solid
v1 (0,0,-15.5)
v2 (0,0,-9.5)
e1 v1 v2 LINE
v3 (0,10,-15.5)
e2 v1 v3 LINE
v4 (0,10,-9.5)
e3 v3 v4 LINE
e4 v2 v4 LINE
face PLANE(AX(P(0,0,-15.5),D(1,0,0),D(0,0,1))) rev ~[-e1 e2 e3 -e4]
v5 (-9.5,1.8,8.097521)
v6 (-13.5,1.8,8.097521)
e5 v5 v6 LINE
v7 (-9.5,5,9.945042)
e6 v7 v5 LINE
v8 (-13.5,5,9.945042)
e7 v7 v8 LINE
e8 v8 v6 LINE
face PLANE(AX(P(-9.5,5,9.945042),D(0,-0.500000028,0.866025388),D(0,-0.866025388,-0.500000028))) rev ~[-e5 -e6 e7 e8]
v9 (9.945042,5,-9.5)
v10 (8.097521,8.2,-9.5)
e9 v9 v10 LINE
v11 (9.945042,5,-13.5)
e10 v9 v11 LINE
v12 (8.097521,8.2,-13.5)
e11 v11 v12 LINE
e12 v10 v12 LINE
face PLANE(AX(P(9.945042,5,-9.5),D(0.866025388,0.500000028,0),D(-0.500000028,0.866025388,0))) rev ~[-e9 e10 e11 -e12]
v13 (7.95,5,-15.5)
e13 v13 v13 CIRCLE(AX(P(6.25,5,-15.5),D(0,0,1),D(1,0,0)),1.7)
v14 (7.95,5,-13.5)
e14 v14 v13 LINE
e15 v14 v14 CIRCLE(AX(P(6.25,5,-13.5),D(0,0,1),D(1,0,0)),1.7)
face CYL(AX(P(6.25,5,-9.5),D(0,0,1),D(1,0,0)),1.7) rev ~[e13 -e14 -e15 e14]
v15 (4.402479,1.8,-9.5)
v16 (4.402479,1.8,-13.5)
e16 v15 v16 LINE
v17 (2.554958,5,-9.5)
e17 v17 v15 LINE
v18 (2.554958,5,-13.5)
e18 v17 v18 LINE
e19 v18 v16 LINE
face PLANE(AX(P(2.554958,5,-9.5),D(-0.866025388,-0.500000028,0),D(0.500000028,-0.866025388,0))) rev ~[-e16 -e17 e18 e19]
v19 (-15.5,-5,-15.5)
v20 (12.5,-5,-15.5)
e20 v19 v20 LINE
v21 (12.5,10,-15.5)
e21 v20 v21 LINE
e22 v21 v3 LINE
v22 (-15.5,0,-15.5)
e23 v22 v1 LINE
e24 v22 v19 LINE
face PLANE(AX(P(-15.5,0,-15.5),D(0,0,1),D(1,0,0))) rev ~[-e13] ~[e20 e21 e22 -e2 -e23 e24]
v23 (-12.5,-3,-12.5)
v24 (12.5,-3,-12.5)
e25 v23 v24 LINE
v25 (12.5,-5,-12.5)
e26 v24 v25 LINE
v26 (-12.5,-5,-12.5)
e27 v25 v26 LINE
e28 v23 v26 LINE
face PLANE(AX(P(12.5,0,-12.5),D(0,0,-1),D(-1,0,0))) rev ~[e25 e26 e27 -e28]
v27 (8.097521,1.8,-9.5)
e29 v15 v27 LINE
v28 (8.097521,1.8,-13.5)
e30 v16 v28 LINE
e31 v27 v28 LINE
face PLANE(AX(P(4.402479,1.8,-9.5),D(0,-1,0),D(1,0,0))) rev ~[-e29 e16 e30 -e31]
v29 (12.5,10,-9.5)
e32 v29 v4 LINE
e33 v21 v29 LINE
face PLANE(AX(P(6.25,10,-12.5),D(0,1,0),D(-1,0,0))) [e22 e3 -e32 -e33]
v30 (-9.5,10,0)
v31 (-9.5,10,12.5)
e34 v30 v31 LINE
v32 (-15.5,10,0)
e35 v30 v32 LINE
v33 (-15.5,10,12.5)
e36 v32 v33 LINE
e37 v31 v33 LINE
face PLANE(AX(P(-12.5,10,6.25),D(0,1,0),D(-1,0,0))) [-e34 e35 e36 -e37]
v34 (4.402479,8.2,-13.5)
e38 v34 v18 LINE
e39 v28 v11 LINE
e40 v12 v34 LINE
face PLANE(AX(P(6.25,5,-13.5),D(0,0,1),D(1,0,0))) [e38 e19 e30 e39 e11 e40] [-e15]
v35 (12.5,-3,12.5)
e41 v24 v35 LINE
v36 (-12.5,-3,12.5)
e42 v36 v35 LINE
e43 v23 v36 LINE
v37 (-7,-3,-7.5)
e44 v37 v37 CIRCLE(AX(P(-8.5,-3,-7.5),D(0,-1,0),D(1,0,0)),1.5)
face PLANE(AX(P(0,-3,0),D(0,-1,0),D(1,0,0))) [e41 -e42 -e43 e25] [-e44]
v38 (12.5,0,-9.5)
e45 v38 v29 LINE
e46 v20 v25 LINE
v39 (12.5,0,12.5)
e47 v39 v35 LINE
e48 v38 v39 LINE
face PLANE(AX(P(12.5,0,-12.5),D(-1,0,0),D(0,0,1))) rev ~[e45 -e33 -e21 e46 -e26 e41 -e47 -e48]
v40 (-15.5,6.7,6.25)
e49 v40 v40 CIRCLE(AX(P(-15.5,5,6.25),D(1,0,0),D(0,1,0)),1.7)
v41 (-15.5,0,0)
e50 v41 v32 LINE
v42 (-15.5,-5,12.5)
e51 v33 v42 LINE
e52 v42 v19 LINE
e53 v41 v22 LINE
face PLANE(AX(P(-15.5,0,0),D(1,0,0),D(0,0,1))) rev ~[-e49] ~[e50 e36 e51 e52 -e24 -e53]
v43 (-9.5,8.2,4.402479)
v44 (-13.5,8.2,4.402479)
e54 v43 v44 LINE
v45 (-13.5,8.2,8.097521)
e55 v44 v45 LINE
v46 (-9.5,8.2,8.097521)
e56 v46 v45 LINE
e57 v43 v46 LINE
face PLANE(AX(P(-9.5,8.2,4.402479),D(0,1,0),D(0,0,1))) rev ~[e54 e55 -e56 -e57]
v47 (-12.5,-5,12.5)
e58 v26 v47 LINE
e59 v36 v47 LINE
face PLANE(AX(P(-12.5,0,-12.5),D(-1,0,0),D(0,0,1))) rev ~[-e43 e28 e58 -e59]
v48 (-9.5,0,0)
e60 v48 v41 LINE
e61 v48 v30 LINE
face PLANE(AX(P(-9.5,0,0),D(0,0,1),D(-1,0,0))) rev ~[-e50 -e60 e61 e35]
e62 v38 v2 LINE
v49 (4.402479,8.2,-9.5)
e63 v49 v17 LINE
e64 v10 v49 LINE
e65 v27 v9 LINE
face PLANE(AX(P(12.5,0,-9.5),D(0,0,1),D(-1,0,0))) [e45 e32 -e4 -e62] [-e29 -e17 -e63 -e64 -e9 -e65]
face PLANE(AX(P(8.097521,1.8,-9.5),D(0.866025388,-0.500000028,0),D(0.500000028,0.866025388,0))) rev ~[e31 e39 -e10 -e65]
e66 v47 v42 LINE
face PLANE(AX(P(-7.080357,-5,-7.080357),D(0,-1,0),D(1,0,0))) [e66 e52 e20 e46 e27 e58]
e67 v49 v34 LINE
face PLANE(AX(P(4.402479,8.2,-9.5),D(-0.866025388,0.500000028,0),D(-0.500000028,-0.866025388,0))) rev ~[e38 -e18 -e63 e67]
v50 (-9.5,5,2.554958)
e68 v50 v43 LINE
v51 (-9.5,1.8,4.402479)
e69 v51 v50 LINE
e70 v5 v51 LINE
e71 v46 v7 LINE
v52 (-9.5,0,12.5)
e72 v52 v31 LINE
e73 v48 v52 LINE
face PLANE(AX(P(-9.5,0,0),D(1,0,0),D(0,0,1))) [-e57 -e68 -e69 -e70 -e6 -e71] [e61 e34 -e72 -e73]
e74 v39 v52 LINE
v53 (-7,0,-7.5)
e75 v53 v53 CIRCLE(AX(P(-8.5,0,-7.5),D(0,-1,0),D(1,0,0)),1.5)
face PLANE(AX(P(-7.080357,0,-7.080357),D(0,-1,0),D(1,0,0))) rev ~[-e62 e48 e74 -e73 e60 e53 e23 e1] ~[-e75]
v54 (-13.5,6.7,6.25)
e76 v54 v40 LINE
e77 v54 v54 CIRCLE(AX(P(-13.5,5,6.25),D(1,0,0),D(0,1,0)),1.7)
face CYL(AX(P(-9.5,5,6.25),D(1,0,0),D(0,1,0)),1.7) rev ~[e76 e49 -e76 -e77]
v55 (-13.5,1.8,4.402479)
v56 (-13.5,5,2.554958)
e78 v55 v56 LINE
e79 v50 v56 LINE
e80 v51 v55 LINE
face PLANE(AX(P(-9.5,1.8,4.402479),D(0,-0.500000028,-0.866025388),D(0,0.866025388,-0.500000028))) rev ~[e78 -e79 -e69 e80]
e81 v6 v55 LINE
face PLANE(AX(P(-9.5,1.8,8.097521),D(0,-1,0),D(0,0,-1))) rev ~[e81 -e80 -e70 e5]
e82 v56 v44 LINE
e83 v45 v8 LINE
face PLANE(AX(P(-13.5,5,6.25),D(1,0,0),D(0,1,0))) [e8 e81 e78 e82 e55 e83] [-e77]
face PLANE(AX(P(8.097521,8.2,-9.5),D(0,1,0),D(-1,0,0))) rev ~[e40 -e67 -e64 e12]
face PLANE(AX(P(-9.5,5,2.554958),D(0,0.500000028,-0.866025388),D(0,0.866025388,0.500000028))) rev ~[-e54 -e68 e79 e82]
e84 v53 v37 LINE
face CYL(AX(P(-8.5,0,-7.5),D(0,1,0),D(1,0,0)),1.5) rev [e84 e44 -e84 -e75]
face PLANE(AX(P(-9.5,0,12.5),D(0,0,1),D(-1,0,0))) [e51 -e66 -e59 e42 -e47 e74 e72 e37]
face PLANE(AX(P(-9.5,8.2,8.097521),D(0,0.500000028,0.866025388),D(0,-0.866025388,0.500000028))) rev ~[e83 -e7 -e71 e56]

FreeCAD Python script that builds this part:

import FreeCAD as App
import Part
import Sketcher
from FreeCAD import Vector
Q = App.Units.Quantity

doc = App.newDocument("Part")
body = doc.addObject("PartDesign::Body", "Body")

# Sketch on XZ plane
sketch1 = doc.addObject("Sketcher::SketchObject", "Sketch")
body.addObject(sketch1)
sketch1.AttachmentSupport = (doc.XZ_Plane, [""])
sketch1.MapMode = "FlatFace"
sketch1.addGeometry([
    Part.LineSegment(Vector(-12.5, 12.5, 0), Vector(-12.5, -12.5, 0)),  # 0
    Part.LineSegment(Vector(-12.5, -12.5, 0), Vector(12.5, -12.5, 0)),  # 1
    Part.LineSegment(Vector(12.5, -12.5, 0), Vector(12.5, 12.5, 0)),  # 2
    Part.LineSegment(Vector(12.5, 12.5, 0), Vector(-12.5, 12.5, 0)),  # 3
    Part.Circle(Vector(-8.5, -7.5, 0), Vector(0, 0, 1), 1.5),  # 4
], False)
sketch1.addConstraint([
    Sketcher.Constraint("Coincident", 0, 2, 1, 1),
    Sketcher.Constraint("Coincident", 1, 2, 2, 1),
    Sketcher.Constraint("Coincident", 2, 2, 3, 1),
    Sketcher.Constraint("Coincident", 3, 2, 0, 1),
    Sketcher.Constraint("Vertical", 0),
    Sketcher.Constraint("Horizontal", 1),
    Sketcher.Constraint("Vertical", 2),
    Sketcher.Constraint("Horizontal", 3),
    Sketcher.Constraint("Symmetric", 0, 2, 2, 2, -1, 1),
    Sketcher.Constraint("Equal", 3, 0),
    Sketcher.Constraint("Diameter", 4, 3.0),
    Sketcher.Constraint("DistanceX", 1, 1, 1, 2, 25.0),
    Sketcher.Constraint("DistanceX", 0, 2, 4, 3, 4.0),
    Sketcher.Constraint("DistanceY", 0, 2, 4, 3, 5.0),
])
pad1 = doc.addObject("PartDesign::Pad", "Pad")
body.addObject(pad1)
pad1.Profile = sketch1
pad1.Length = 3

# Sketch on XZ plane
sketch2 = doc.addObject("Sketcher::SketchObject", "Sketch001")
body.addObject(sketch2)
sketch2.AttachmentSupport = (doc.XZ_Plane, [""])
sketch2.MapMode = "FlatFace"
sketch2.addGeometry([
    Part.LineSegment(Vector(-12.5, -12.5, 0), Vector(-12.5, 12.5, 0)),  # 0
    Part.LineSegment(Vector(-12.5, 12.5, 0), Vector(-15.5, 12.5, 0)),  # 1
    Part.LineSegment(Vector(-15.5, 12.5, 0), Vector(-15.5, -15.5, 0)),  # 2
    Part.LineSegment(Vector(-15.5, -15.5, 0), Vector(12.5, -15.5, 0)),  # 3
    Part.LineSegment(Vector(12.5, -15.5, 0), Vector(12.5, -12.5, 0)),  # 4
    Part.LineSegment(Vector(12.5, -12.5, 0), Vector(-12.5, -12.5, 0)),  # 5
], False)
sketch2.addConstraint([
    Sketcher.Constraint("Coincident", 0, 2, 1, 1),
    Sketcher.Constraint("Coincident", 1, 2, 2, 1),
    Sketcher.Constraint("Coincident", 2, 2, 3, 1),
    Sketcher.Constraint("Coincident", 3, 2, 4, 1),
    Sketcher.Constraint("Coincident", 4, 2, 5, 1),
    Sketcher.Constraint("Coincident", 5, 2, 0, 1),
    Sketcher.Constraint("Vertical", 0),
    Sketcher.Constraint("Horizontal", 1),
    Sketcher.Constraint("Vertical", 2),
    Sketcher.Constraint("Horizontal", 3),
    Sketcher.Constraint("Vertical", 4),
    Sketcher.Constraint("Horizontal", 5),
    Sketcher.Constraint("Symmetric", 0, 2, 4, 2, -1, 1),
    Sketcher.Constraint("Equal", 5, 0),
    Sketcher.Constraint("Equal", 3, 2),
    Sketcher.Constraint("DistanceX", 1, 2, 1, 1, 3.0),
    Sketcher.Constraint("DistanceX", 3, 1, 3, 2, 28.0),
])
pad2 = doc.addObject("PartDesign::Pad", "Pad001")
body.addObject(pad2)
pad2.Profile = sketch2
pad2.Length = 5

# Sketch on XZ plane
sketch3 = doc.addObject("Sketcher::SketchObject", "Sketch002")
body.addObject(sketch3)
sketch3.AttachmentSupport = (doc.XZ_Plane, [""])
sketch3.MapMode = "FlatFace"
sketch3.addGeometry([
    Part.LineSegment(Vector(-10, 12, 0), Vector(-10, 0, 0)),  # 0
    Part.LineSegment(Vector(-10, 0, 0), Vector(-16, 0, 0)),  # 1
    Part.LineSegment(Vector(-16, 0, 0), Vector(-16, 12, 0)),  # 2
    Part.LineSegment(Vector(-16, 12, 0), Vector(-10, 12, 0)),  # 3
    Part.LineSegment(Vector(12, -10, 0), Vector(12, -16, 0)),  # 4
    Part.LineSegment(Vector(12, -16, 0), Vector(0, -16, 0)),  # 5
    Part.LineSegment(Vector(0, -16, 0), Vector(0, -10, 0)),  # 6
    Part.LineSegment(Vector(0, -10, 0), Vector(12, -10, 0)),  # 7
], False)
sketch3.addConstraint([
    Sketcher.Constraint("Coincident", 0, 2, 1, 1),
    Sketcher.Constraint("Coincident", 1, 2, 2, 1),
    Sketcher.Constraint("Coincident", 2, 2, 3, 1),
    Sketcher.Constraint("Coincident", 3, 2, 0, 1),
    Sketcher.Constraint("Coincident", 4, 2, 5, 1),
    Sketcher.Constraint("Coincident", 5, 2, 6, 1),
    Sketcher.Constraint("Coincident", 6, 2, 7, 1),
    Sketcher.Constraint("Coincident", 7, 2, 4, 1),
    Sketcher.Constraint("Vertical", 0),
    Sketcher.Constraint("Horizontal", 1),
    Sketcher.Constraint("Vertical", 2),
    Sketcher.Constraint("Horizontal", 3),
    Sketcher.Constraint("Vertical", 4),
    Sketcher.Constraint("Horizontal", 5),
    Sketcher.Constraint("Vertical", 6),
    Sketcher.Constraint("Horizontal", 7),
    Sketcher.Constraint("PointOnObject", 0, 2, -1),
    Sketcher.Constraint("PointOnObject", 5, 2, -2),
    Sketcher.Constraint("Equal", 7, 0),
    Sketcher.Constraint("Equal", 3, 4),
    Sketcher.Constraint("DistanceX", 1, 2, 1, 1, 6.0),
    Sketcher.Constraint("DistanceX", 5, 2, 5, 1, 12.5),
    Sketcher.Constraint("DistanceX", 0, 2, 4, 2, 22.0),
    Sketcher.Constraint("DistanceY", 4, 2, 3, 2, 28.0),
])
pad3 = doc.addObject("PartDesign::Pad", "Pad002")
body.addObject(pad3)
pad3.Profile = sketch3
pad3.Length = 10
pad3.Reversed = True

# Sketch on XY plane
sketch4 = doc.addObject("Sketcher::SketchObject", "Sketch003")
body.addObject(sketch4)
sketch4.AttachmentSupport = (doc.XY_Plane, [""])
sketch4.MapMode = "FlatFace"
sketch4.AttachmentOffset = App.Placement(Vector(0, 0, -9.5), App.Rotation())
sketch4.addGeometry([
    Part.LineSegment(Vector(8.1, 1.8, 0), Vector(9.9, 5, 0)),  # 0
    Part.LineSegment(Vector(9.9, 5, 0), Vector(8.1, 8.2, 0)),  # 1
    Part.LineSegment(Vector(8.1, 8.2, 0), Vector(4.4, 8.2, 0)),  # 2
    Part.LineSegment(Vector(4.4, 8.2, 0), Vector(2.6, 5, 0)),  # 3
    Part.LineSegment(Vector(2.6, 5, 0), Vector(4.4, 1.8, 0)),  # 4
    Part.LineSegment(Vector(4.4, 1.8, 0), Vector(8.1, 1.8, 0)),  # 5
], False)
sketch4.addConstraint([
    Sketcher.Constraint("Coincident", 0, 2, 1, 1),
    Sketcher.Constraint("Coincident", 1, 2, 2, 1),
    Sketcher.Constraint("Coincident", 2, 2, 3, 1),
    Sketcher.Constraint("Coincident", 3, 2, 4, 1),
    Sketcher.Constraint("Coincident", 4, 2, 5, 1),
    Sketcher.Constraint("Coincident", 5, 2, 0, 1),
    Sketcher.Constraint("Horizontal", 2),
    Sketcher.Constraint("Horizontal", 5),
    Sketcher.Constraint("Parallel", 0, 3),
    Sketcher.Constraint("Parallel", 1, 4),
    Sketcher.Constraint("Horizontal", 0, 2, 3, 2),
    Sketcher.Constraint("Vertical", 2, 2, 4, 2),
    Sketcher.Constraint("Vertical", 1, 2, 5, 2),
    Sketcher.Constraint("Angle", 0, Q("59.999998 deg")),
    Sketcher.Constraint("DistanceY", -1, 1, 0, 2, 5.0),
    Sketcher.Constraint("DistanceY", -1, 1, 1, 2, 8.2),
    Sketcher.Constraint("DistanceX", 2, 2, 2, 1, 3.695042),
    Sketcher.Constraint("DistanceX", -1, 1, 1, 2, 8.097521),
])
pocket1 = doc.addObject("PartDesign::Pocket", "Pocket")
body.addObject(pocket1)
pocket1.Profile = sketch4
pocket1.Length = 4

# Sketch on XY plane
sketch5 = doc.addObject("Sketcher::SketchObject", "Sketch004")
body.addObject(sketch5)
sketch5.AttachmentSupport = (doc.XY_Plane, [""])
sketch5.MapMode = "FlatFace"
sketch5.AttachmentOffset = App.Placement(Vector(0, 0, -9.5), App.Rotation())
sketch5.addGeometry(Part.Circle(Vector(6.2, 5, 0), Vector(0, 0, 1), 1.7), False)
sketch5.addConstraint([
    Sketcher.Constraint("Diameter", 0, 3.4),
    Sketcher.Constraint("DistanceY", -1, 1, 0, 3, 5.0),
    Sketcher.Constraint("DistanceX", -1, 1, 0, 3, 6.25),
])
pocket2 = doc.addObject("PartDesign::Pocket", "Pocket001")
body.addObject(pocket2)
pocket2.Profile = sketch5
pocket2.Length = 25

# Sketch on YZ plane
sketch6 = doc.addObject("Sketcher::SketchObject", "Sketch005")
body.addObject(sketch6)
sketch6.AttachmentSupport = (doc.YZ_Plane, [""])
sketch6.MapMode = "FlatFace"
sketch6.AttachmentOffset = App.Placement(Vector(0, 0, -9.5), App.Rotation())
sketch6.addGeometry([
    Part.LineSegment(Vector(8.2, 4.4, 0), Vector(8.2, 8.1, 0)),  # 0
    Part.LineSegment(Vector(8.2, 8.1, 0), Vector(5, 9.9, 0)),  # 1
    Part.LineSegment(Vector(5, 9.9, 0), Vector(1.8, 8.1, 0)),  # 2
    Part.LineSegment(Vector(1.8, 8.1, 0), Vector(1.8, 4.4, 0)),  # 3
    Part.LineSegment(Vector(1.8, 4.4, 0), Vector(5, 2.6, 0)),  # 4
    Part.LineSegment(Vector(5, 2.6, 0), Vector(8.2, 4.4, 0)),  # 5
], False)
sketch6.addConstraint([
    Sketcher.Constraint("Coincident", 0, 2, 1, 1),
    Sketcher.Constraint("Coincident", 1, 2, 2, 1),
    Sketcher.Constraint("Coincident", 2, 2, 3, 1),
    Sketcher.Constraint("Coincident", 3, 2, 4, 1),
    Sketcher.Constraint("Coincident", 4, 2, 5, 1),
    Sketcher.Constraint("Coincident", 5, 2, 0, 1),
    Sketcher.Constraint("Vertical", 0),
    Sketcher.Constraint("Vertical", 3),
    Sketcher.Constraint("Parallel", 1, 4),
    Sketcher.Constraint("Parallel", 2, 5),
    Sketcher.Constraint("Horizontal", 0, 2, 2, 2),
    Sketcher.Constraint("Horizontal", 3, 2, 5, 2),
    Sketcher.Constraint("Vertical", 1, 2, 4, 2),
    Sketcher.Constraint("Angle", 1, Q("149.999998 deg")),
    Sketcher.Constraint("DistanceX", -1, 1, 1, 2, 5.0),
    Sketcher.Constraint("DistanceX", -1, 1, 0, 2, 8.2),
    Sketcher.Constraint("DistanceY", 0, 1, 0, 2, 3.695042),
    Sketcher.Constraint("DistanceY", -1, 1, 0, 2, 8.097521),
])
pocket3 = doc.addObject("PartDesign::Pocket", "Pocket002")
body.addObject(pocket3)
pocket3.Profile = sketch6
pocket3.Length = 4

# Sketch on YZ plane
sketch7 = doc.addObject("Sketcher::SketchObject", "Sketch006")
body.addObject(sketch7)
sketch7.AttachmentSupport = (doc.YZ_Plane, [""])
sketch7.MapMode = "FlatFace"
sketch7.AttachmentOffset = App.Placement(Vector(0, 0, -9.5), App.Rotation())
sketch7.addGeometry(Part.Circle(Vector(5, 6.2, 0), Vector(0, 0, 1), 1.7), False)
sketch7.addConstraint([
    Sketcher.Constraint("Diameter", 0, 3.4),
    Sketcher.Constraint("DistanceX", -1, 1, 0, 3, 5.0),
    Sketcher.Constraint("DistanceY", -1, 1, 0, 3, 6.25),
])
pocket4 = doc.addObject("PartDesign::Pocket", "Pocket003")
body.addObject(pocket4)
pocket4.Profile = sketch7
pocket4.Length = 25

doc.recompute()
